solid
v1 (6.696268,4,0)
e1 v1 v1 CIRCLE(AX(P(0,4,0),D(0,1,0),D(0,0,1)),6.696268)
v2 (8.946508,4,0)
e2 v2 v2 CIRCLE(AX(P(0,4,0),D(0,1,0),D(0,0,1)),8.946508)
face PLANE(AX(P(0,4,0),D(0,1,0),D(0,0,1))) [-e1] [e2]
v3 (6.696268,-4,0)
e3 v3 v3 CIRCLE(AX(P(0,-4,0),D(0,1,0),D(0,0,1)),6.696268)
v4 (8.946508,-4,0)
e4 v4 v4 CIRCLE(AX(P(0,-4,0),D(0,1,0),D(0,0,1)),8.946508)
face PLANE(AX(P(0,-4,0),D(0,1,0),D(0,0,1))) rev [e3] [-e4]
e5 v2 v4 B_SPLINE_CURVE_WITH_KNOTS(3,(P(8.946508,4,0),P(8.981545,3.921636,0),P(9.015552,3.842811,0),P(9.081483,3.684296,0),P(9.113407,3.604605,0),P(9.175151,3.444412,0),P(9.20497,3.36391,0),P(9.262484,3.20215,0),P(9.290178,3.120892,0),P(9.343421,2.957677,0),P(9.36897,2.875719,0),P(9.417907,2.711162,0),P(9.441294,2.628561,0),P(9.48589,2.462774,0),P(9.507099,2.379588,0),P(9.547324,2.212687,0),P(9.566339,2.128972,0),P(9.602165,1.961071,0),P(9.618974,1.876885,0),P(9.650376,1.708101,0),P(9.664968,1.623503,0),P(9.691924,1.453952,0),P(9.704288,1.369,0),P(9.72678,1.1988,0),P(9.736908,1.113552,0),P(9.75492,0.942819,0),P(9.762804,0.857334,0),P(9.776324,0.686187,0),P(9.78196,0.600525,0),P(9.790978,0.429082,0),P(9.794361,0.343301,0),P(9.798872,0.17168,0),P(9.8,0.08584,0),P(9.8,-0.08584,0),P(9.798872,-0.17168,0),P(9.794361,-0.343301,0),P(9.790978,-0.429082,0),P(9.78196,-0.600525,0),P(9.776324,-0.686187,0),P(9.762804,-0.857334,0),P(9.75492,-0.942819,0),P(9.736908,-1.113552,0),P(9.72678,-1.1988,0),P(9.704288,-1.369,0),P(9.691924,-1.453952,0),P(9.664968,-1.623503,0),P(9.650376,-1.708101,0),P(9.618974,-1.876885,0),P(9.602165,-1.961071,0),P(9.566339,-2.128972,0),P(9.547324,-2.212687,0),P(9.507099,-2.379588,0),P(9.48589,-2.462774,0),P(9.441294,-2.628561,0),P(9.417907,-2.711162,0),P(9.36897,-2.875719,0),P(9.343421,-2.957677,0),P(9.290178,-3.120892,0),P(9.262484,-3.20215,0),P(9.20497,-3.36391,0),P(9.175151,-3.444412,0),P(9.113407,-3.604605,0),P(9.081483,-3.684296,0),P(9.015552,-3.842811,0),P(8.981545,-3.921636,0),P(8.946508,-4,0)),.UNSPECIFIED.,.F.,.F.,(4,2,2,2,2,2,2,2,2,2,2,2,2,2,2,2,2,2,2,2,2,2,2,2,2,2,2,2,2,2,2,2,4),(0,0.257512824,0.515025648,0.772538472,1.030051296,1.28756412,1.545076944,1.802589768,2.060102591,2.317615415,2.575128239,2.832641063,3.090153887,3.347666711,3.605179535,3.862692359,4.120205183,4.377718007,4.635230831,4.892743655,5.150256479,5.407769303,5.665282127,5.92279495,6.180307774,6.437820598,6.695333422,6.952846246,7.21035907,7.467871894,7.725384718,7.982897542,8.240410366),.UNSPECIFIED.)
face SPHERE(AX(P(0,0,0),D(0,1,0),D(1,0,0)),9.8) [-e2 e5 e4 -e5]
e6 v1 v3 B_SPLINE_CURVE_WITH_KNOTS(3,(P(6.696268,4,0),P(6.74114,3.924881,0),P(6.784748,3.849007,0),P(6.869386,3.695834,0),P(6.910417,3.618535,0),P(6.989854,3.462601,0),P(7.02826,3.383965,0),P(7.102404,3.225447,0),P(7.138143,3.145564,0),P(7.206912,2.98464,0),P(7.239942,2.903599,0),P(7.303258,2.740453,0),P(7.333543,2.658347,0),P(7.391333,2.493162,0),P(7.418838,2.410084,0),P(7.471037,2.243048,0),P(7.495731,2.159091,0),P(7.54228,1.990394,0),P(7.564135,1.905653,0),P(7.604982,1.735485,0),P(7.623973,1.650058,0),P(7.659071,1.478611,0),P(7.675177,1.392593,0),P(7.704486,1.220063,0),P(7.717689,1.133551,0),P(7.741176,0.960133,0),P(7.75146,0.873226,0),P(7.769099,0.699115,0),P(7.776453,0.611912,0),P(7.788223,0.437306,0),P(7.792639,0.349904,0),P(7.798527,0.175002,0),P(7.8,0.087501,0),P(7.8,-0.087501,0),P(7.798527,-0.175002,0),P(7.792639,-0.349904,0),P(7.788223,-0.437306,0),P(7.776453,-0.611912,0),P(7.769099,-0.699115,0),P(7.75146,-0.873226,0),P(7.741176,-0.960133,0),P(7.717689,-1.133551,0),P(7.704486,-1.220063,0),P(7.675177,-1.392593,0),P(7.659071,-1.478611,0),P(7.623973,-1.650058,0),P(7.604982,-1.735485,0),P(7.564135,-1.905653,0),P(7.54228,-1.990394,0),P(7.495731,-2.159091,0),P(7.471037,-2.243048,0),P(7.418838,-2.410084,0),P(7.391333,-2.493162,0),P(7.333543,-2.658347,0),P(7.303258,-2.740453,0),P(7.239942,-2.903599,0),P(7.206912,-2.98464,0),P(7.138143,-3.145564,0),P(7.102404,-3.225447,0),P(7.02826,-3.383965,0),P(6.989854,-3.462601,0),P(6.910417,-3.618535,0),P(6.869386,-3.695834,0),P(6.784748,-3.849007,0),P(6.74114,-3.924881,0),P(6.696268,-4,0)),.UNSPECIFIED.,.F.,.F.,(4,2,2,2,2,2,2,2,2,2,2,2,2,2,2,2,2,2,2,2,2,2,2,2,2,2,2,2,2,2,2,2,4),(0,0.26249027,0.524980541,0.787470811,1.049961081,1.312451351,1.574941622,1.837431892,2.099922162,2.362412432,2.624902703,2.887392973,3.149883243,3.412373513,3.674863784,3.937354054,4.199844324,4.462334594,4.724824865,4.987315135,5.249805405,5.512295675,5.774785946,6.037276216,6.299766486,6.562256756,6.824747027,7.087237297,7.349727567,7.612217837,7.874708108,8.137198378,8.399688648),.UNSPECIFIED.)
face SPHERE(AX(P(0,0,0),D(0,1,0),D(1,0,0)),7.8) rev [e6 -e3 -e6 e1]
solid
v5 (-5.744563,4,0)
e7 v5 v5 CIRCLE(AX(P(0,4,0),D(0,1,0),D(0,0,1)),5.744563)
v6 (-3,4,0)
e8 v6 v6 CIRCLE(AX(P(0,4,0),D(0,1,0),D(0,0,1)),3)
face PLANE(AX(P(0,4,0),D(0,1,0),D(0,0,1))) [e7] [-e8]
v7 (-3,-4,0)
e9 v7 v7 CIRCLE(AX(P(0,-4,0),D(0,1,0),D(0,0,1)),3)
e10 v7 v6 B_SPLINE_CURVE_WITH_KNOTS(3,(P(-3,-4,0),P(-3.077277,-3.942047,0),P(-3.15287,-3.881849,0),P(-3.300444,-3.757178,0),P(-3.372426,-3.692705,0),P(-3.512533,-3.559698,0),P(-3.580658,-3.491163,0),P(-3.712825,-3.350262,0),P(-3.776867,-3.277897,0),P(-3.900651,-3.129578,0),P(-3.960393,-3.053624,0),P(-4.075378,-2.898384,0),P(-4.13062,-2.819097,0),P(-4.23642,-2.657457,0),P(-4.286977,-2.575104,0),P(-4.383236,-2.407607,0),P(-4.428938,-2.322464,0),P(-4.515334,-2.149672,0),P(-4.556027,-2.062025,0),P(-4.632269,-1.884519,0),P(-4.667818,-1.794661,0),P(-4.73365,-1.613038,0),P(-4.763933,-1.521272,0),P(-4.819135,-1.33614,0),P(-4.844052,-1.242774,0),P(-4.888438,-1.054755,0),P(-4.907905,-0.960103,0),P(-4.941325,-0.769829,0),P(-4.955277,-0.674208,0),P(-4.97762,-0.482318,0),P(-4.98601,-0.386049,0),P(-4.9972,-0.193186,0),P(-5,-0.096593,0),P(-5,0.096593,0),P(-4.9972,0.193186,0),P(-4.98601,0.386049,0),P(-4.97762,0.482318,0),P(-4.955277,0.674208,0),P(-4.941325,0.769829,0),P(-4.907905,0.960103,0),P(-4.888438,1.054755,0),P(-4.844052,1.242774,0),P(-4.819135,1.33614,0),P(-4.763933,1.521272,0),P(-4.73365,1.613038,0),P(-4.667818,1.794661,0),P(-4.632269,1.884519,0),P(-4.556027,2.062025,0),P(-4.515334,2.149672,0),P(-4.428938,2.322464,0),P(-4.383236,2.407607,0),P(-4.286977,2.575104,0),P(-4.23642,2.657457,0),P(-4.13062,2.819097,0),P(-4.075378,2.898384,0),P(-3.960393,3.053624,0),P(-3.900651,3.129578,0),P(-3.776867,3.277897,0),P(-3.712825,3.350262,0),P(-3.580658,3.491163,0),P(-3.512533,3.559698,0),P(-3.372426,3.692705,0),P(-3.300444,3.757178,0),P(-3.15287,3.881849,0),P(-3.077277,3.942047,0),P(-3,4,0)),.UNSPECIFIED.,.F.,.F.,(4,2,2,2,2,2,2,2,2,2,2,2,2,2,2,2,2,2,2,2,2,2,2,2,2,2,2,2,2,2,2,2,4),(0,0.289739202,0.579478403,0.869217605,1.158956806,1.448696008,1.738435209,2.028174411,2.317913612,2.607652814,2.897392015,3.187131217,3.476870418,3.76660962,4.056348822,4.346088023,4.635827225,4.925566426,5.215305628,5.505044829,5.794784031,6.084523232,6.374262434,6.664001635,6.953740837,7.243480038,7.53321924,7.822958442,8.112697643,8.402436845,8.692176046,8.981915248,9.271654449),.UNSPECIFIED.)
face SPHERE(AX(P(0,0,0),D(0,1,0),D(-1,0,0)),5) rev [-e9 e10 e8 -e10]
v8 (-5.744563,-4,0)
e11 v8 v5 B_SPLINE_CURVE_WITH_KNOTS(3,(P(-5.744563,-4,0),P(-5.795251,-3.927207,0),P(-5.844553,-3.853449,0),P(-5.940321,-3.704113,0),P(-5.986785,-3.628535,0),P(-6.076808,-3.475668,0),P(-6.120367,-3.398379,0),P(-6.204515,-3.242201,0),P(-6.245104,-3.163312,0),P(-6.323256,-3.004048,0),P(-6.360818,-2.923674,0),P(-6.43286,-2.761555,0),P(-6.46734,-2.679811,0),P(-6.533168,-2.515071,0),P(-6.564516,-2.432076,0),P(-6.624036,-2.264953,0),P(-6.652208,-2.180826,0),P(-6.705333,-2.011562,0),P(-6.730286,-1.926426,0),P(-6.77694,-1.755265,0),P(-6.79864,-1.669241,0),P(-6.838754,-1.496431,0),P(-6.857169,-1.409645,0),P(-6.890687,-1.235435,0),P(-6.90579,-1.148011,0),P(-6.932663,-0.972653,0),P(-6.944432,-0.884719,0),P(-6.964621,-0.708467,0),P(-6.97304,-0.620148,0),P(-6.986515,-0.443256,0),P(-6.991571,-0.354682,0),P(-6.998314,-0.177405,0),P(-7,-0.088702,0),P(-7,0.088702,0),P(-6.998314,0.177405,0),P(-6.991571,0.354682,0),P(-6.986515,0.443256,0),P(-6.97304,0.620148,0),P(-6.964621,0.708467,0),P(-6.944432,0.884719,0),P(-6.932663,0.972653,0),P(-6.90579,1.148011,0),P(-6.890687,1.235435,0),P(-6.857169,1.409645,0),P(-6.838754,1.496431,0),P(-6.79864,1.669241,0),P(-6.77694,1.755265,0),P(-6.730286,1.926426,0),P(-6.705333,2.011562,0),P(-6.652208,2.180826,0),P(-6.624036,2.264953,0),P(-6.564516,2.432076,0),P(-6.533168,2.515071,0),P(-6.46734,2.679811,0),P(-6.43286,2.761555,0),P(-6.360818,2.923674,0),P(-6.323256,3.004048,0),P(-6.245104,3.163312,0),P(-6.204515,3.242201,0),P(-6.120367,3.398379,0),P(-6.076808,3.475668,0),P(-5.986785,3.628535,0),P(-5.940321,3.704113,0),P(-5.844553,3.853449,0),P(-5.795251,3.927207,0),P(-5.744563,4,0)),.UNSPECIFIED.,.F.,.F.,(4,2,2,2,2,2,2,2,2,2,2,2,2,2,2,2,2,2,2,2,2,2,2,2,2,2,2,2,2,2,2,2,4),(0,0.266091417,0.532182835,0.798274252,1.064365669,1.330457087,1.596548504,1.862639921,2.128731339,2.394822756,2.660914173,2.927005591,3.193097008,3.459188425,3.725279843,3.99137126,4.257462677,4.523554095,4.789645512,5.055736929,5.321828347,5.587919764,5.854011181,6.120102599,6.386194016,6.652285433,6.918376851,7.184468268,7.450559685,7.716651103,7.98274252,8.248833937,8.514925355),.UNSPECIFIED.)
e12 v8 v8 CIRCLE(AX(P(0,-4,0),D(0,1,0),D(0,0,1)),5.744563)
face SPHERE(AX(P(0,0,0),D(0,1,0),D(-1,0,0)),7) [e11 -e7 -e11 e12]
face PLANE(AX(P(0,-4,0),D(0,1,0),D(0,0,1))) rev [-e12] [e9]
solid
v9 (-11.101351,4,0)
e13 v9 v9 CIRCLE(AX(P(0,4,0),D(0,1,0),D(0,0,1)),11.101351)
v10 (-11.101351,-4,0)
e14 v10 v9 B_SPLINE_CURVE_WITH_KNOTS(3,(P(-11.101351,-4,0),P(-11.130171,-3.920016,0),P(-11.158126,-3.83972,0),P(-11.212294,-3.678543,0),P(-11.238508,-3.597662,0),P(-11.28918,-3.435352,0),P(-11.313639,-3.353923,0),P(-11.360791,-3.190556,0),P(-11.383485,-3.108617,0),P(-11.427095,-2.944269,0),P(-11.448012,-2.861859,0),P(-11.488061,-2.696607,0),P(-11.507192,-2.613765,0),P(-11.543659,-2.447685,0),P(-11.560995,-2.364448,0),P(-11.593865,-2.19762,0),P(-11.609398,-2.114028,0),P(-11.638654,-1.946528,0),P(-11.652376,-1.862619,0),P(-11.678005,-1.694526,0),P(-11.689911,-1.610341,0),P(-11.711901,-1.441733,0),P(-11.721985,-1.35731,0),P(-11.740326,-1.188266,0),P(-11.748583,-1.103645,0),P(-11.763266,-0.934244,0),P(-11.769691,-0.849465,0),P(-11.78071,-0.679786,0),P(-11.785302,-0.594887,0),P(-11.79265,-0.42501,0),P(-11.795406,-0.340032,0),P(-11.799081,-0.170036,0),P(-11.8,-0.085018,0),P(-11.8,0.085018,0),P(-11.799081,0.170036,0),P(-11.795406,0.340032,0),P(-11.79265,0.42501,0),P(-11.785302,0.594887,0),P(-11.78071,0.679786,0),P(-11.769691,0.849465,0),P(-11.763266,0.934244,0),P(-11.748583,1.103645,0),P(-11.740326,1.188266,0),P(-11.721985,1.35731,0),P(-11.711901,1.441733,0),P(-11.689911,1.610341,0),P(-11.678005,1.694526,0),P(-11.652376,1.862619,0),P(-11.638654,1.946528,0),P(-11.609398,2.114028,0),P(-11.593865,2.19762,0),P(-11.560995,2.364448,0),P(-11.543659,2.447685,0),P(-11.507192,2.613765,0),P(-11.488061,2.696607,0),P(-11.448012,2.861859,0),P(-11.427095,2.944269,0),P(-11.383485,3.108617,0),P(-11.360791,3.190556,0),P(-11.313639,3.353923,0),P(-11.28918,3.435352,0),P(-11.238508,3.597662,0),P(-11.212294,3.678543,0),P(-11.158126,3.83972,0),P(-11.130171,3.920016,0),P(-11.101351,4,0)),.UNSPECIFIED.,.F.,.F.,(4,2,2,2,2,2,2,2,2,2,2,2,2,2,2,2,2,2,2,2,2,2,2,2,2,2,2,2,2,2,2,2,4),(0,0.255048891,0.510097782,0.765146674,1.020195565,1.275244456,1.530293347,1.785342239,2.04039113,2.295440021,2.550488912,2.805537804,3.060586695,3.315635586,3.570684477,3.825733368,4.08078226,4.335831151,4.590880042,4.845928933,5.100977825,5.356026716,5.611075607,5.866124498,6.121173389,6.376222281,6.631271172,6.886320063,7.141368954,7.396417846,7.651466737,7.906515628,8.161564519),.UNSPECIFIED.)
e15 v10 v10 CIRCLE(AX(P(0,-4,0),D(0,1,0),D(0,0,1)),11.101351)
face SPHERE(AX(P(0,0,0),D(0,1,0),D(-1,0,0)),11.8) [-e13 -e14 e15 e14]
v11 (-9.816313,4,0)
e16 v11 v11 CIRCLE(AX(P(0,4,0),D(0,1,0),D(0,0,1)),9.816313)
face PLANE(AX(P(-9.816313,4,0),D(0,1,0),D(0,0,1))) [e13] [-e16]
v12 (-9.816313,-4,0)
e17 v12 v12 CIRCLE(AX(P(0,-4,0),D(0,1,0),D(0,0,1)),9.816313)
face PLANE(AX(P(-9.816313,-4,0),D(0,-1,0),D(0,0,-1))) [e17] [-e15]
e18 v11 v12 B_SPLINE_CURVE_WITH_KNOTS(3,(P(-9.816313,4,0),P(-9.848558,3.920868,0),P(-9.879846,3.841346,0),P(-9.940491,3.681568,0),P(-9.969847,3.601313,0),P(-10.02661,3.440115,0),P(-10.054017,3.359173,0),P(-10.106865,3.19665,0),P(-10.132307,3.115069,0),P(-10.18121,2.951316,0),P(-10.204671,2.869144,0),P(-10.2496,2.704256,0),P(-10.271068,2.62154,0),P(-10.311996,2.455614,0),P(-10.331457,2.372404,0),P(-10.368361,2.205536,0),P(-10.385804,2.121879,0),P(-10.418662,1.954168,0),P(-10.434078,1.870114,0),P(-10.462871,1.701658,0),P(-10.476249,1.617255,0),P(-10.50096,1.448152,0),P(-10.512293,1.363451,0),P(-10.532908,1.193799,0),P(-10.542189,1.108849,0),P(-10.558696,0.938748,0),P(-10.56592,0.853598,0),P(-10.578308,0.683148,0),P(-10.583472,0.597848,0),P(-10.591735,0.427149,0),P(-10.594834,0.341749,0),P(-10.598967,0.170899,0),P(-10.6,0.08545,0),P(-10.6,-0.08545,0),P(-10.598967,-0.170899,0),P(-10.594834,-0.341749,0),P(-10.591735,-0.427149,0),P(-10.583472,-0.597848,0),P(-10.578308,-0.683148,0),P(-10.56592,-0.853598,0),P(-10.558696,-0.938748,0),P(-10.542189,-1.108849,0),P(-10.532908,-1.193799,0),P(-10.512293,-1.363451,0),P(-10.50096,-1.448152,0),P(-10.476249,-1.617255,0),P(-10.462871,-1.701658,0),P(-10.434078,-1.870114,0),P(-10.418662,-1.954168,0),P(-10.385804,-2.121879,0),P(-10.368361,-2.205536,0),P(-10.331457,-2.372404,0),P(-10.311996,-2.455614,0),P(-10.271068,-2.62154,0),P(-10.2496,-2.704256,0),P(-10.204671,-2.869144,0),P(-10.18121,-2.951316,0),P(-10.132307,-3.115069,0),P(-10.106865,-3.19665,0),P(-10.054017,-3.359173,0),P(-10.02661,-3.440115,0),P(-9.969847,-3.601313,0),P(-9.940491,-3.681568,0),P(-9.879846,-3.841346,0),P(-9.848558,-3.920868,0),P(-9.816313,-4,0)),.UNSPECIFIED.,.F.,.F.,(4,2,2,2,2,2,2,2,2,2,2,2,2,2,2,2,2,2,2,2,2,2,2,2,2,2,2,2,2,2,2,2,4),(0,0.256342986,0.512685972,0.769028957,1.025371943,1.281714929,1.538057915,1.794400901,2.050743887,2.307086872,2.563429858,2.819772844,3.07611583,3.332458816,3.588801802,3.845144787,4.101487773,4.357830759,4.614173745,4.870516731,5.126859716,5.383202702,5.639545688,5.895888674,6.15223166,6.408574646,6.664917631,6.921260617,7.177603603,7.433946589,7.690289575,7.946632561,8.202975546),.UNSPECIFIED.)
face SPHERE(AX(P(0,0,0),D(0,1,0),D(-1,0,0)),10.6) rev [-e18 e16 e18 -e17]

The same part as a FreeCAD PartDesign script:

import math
import FreeCAD as App
import Part
import Sketcher

V = App.Vector
Q = App.Units.Quantity

doc = App.newDocument("Part")
body = doc.addObject("PartDesign::Body", "Body")

# Sketch on XY plane
sketch1 = body.newObject("Sketcher::SketchObject", "Sketch")
sketch1.AttachmentSupport = (doc.getObject("XY_Plane"), [""])
sketch1.MapMode = "FlatFace"
sketch1.addGeometry([
    Part.LineSegment(V(-3, 4, 0), V(-5.7, 4, 0)),
    Part.ArcOfCircle(Part.Circle(V(0, 0, 0), V(0, 0, 1), 7), math.radians(145), math.radians(215)),
    Part.LineSegment(V(-5.7, -4, 0), V(-3, -4, 0)),
    Part.ArcOfCircle(Part.Circle(V(0, 0, 0), V(0, 0, 1), 5), math.radians(127), math.radians(233)),
], False)
sketch1.addConstraint([
    Sketcher.Constraint("Coincident", 0, 2, 1, 1),
    Sketcher.Constraint("Coincident", 1, 2, 2, 1),
    Sketcher.Constraint("Coincident", 2, 2, 3, 2),
    Sketcher.Constraint("Coincident", 3, 1, 0, 1),
    Sketcher.Constraint("Horizontal", 0),
    Sketcher.Constraint("Horizontal", 2),
    Sketcher.Constraint("Coincident", 1, 3, -1, 1),
    Sketcher.Constraint("Coincident", 3, 3, -1, 1),
    Sketcher.Constraint("Vertical", 0, 2, 1, 2),
    Sketcher.Constraint("Radius", 1, Q("7 mm")),
    Sketcher.Constraint("Radius", 3, Q("5 mm")),
    Sketcher.Constraint("DistanceY", -1, 1, 0, 2, Q("4 mm")),
])
revolution = body.newObject("PartDesign::Revolution", "Revolution")
revolution.Profile = sketch1
revolution.ReferenceAxis = (sketch1, ["V_Axis"])
revolution.Angle = 360
body2 = doc.addObject("PartDesign::Body", "Body001")

# Sketch on XY plane
sketch2 = body2.newObject("Sketcher::SketchObject", "Sketch001")
sketch2.AttachmentSupport = (doc.getObject("XY_Plane001"), [""])
sketch2.MapMode = "FlatFace"
sketch2.addGeometry([
    Part.ArcOfCircle(Part.Circle(V(0, 0, 0), V(0, 0, 1), 7.8), math.radians(-31), math.radians(31)),
    Part.LineSegment(V(6.7, -4, 0), V(8.9, -4, 0)),
    Part.ArcOfCircle(Part.Circle(V(0, 0, 0), V(0, 0, 1), 9.8), math.radians(-24), math.radians(24)),
    Part.LineSegment(V(8.9, 4, 0), V(6.7, 4, 0)),
], False)
sketch2.addConstraint([
    Sketcher.Constraint("Coincident", 0, 1, 1, 1),
    Sketcher.Constraint("Coincident", 1, 2, 2, 1),
    Sketcher.Constraint("Coincident", 2, 2, 3, 1),
    Sketcher.Constraint("Coincident", 3, 2, 0, 2),
    Sketcher.Constraint("Horizontal", 1),
    Sketcher.Constraint("Horizontal", 3),
    Sketcher.Constraint("Coincident", 0, 3, -1, 1),
    Sketcher.Constraint("Coincident", 2, 3, -1, 1),
    Sketcher.Constraint("Vertical", 1, 2, 2, 2),
    Sketcher.Constraint("Radius", 0, Q("7.8 mm")),
    Sketcher.Constraint("Radius", 2, Q("9.8 mm")),
    Sketcher.Constraint("DistanceY", 0, 1, -1, 1, Q("4 mm")),
])
revolution2 = body2.newObject("PartDesign::Revolution", "Revolution001")
revolution2.Profile = sketch2
revolution2.ReferenceAxis = (sketch2, ["V_Axis"])
revolution2.Angle = 360
body3 = doc.addObject("PartDesign::Body", "Body002")

# Sketch on XY plane
sketch3 = body3.newObject("Sketcher::SketchObject", "Sketch002")
sketch3.AttachmentSupport = (doc.getObject("XY_Plane002"), [""])
sketch3.MapMode = "FlatFace"
sketch3.addGeometry([
    Part.LineSegment(V(-9.8, 4, 0), V(-11.1, 4, 0)),
    Part.ArcOfCircle(Part.Circle(V(0, 0, 0), V(0, 0, 1), 11.8), math.radians(160), math.radians(200)),
    Part.LineSegment(V(-11.1, -4, 0), V(-9.8, -4, 0)),
    Part.ArcOfCircle(Part.Circle(V(0, 0, 0), V(0, 0, 1), 10.6), math.radians(158), math.radians(202)),
], False)
sketch3.addConstraint([
    Sketcher.Constraint("Coincident", 0, 2, 1, 1),
    Sketcher.Constraint("Coincident", 1, 2, 2, 1),
    Sketcher.Constraint("Coincident", 2, 2, 3, 2),
    Sketcher.Constraint("Coincident", 3, 1, 0, 1),
    Sketcher.Constraint("Horizontal", 0),
    Sketcher.Constraint("Horizontal", 2),
    Sketcher.Constraint("Coincident", 1, 3, -1, 1),
    Sketcher.Constraint("Coincident", 3, 3, -1, 1),
    Sketcher.Constraint("Vertical", 0, 2, 1, 2),
    Sketcher.Constraint("Radius", 1, Q("11.8 mm")),
    Sketcher.Constraint("Radius", 3, Q("10.6 mm")),
    Sketcher.Constraint("DistanceY", -1, 1, 0, 2, Q("4 mm")),
])
revolution3 = body3.newObject("PartDesign::Revolution", "Revolution002")
revolution3.Profile = sketch3
revolution3.ReferenceAxis = (sketch3, ["V_Axis"])
revolution3.Angle = 360

doc.recompute()
